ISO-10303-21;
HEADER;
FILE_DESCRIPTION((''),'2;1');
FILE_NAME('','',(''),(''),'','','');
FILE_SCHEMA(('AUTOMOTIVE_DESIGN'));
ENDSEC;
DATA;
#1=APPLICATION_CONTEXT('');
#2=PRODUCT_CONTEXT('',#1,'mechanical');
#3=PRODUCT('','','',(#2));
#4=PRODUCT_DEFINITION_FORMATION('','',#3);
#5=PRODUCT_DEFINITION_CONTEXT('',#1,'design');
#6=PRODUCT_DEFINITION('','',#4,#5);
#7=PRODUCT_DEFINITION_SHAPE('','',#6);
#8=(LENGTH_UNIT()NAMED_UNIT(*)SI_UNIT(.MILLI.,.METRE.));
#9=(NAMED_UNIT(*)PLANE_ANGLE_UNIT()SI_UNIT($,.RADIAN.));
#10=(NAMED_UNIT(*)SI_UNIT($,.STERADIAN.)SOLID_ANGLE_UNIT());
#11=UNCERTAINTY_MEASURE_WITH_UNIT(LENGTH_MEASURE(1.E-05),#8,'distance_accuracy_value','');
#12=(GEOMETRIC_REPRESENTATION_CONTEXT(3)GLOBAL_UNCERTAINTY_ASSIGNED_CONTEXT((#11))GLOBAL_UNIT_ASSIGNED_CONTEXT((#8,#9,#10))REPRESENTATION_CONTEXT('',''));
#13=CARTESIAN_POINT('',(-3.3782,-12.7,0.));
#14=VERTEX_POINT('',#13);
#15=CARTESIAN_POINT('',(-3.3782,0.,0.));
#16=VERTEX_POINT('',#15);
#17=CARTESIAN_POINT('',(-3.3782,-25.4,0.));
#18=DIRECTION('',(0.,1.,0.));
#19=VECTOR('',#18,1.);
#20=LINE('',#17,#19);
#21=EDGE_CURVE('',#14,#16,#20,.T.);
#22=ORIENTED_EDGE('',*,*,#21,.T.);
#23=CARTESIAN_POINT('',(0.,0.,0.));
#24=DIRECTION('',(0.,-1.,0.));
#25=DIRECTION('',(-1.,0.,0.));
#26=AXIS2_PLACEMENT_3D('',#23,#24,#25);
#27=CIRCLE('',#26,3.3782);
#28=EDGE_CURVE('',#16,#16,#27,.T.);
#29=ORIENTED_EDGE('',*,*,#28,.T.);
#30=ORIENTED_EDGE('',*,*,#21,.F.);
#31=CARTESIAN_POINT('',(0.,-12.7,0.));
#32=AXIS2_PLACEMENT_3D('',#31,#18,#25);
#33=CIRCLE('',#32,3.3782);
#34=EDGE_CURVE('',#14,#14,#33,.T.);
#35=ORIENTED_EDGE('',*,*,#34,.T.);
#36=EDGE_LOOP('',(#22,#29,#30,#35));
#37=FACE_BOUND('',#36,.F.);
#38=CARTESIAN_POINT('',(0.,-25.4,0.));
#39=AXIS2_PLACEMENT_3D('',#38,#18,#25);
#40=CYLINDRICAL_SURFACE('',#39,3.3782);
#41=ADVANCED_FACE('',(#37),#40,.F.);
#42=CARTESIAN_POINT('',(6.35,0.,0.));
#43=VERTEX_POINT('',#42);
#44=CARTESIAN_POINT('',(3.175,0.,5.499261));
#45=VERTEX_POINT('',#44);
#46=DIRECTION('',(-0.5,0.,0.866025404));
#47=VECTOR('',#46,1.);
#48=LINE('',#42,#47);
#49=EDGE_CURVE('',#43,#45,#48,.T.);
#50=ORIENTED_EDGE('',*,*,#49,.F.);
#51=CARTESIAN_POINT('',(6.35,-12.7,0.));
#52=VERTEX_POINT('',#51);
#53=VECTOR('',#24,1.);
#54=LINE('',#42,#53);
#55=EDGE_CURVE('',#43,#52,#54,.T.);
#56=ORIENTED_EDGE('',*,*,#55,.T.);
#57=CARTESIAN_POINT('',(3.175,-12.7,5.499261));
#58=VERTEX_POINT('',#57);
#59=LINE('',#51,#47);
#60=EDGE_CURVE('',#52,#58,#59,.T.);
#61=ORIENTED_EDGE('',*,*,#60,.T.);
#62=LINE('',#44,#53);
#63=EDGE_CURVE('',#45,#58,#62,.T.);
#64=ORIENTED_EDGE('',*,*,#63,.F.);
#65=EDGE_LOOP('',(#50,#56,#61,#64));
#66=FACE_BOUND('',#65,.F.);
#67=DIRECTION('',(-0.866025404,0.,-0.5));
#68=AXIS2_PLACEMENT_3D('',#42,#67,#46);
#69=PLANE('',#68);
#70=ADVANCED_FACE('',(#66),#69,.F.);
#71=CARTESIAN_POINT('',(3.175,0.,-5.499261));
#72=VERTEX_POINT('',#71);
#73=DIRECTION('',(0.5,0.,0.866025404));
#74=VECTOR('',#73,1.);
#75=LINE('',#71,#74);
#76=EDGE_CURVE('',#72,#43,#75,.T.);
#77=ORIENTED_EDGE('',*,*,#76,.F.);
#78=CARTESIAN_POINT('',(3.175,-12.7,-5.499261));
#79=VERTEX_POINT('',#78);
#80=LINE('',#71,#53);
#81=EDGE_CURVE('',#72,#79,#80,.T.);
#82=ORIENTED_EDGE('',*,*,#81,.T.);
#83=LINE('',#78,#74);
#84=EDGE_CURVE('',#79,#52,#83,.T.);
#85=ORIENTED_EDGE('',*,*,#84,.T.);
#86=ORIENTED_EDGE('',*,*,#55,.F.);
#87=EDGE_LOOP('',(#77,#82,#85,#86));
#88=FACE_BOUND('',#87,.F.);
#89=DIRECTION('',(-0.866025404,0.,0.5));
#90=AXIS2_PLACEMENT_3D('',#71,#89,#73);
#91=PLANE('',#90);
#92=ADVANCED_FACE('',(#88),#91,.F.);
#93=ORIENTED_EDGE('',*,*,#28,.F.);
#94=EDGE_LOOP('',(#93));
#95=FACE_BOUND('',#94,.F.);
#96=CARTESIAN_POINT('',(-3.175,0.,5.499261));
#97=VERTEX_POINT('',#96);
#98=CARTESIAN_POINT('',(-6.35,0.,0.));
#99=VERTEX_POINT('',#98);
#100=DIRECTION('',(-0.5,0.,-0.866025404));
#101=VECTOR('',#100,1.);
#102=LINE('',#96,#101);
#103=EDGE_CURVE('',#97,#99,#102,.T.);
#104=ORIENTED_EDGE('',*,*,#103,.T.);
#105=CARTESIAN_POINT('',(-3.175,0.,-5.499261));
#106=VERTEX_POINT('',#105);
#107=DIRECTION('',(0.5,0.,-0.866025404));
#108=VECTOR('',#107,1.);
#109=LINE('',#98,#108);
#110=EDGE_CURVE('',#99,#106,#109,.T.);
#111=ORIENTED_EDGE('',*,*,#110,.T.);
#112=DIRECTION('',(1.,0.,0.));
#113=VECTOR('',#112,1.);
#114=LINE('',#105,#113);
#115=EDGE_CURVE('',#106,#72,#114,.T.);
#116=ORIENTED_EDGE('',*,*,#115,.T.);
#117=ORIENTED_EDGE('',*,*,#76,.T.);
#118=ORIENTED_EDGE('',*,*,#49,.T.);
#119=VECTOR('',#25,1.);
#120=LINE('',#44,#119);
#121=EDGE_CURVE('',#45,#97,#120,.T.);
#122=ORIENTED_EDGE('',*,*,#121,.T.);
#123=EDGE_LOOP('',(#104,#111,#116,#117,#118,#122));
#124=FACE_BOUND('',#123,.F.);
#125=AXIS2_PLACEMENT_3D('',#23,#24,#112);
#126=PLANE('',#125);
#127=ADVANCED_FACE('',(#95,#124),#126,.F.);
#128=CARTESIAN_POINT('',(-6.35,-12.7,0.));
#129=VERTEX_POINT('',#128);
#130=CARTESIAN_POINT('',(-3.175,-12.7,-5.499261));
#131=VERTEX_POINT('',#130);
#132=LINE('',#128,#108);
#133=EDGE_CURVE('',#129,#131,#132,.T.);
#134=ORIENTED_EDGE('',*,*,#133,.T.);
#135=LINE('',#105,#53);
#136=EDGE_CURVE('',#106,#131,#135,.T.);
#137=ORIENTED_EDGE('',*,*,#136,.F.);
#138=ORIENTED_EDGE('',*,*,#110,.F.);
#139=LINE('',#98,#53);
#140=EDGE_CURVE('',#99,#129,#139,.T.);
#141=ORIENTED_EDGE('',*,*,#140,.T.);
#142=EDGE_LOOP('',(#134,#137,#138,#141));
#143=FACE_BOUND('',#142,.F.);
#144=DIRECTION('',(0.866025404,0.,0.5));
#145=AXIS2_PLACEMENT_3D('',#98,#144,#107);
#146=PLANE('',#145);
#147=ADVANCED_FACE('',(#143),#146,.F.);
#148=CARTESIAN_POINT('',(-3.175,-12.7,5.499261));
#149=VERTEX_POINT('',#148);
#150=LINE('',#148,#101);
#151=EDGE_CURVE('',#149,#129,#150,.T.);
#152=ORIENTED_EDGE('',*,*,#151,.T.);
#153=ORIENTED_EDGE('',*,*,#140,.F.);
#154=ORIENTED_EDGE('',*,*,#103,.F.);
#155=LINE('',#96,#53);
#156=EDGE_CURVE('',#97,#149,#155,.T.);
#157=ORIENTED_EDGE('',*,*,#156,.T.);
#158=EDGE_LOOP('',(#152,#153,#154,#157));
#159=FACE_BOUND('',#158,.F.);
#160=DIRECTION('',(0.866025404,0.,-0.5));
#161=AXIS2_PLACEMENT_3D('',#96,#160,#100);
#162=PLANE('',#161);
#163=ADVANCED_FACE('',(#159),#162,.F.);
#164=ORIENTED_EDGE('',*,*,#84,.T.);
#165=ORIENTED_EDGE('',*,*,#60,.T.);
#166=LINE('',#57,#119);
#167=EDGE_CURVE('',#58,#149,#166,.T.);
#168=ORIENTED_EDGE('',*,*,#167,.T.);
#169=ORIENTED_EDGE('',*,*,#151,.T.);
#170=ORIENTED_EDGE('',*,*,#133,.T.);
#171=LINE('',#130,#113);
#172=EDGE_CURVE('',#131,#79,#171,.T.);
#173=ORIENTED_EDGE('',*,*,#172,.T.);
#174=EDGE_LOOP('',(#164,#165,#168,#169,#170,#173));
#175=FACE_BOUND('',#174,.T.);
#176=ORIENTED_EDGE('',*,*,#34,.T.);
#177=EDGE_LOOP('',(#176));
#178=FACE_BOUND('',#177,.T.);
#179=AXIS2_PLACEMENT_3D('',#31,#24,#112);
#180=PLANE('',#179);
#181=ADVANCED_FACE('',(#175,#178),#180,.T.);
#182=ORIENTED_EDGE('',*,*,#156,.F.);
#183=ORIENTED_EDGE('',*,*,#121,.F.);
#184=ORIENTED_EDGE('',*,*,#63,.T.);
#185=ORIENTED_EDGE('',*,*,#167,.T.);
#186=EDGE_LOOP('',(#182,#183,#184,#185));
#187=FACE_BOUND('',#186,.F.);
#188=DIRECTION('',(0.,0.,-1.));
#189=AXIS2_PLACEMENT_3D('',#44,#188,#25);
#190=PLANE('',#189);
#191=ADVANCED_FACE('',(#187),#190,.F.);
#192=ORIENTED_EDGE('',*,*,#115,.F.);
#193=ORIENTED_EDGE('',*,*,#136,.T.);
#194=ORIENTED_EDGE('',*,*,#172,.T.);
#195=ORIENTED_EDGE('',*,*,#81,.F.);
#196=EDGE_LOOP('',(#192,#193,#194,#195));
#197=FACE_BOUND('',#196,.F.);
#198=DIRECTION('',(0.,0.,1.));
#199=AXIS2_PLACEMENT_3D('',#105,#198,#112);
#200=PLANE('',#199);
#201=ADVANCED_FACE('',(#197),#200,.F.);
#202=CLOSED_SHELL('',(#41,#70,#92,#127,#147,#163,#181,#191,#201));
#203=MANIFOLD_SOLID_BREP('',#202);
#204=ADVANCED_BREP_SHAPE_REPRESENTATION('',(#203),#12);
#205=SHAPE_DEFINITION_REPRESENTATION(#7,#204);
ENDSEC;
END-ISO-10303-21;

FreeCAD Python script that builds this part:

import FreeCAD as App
import Part
import Sketcher
Q = App.Units.Quantity


def add_polygon(sketch, points):
    """Adds a closed chain of lines whose ends are joined by coincident constraints."""
    first, n = sketch.GeometryCount, len(points)
    for a, b in zip(points, points[1:] + points[:1]):
        sketch.addGeometry(Part.LineSegment(App.Vector(*a, 0), App.Vector(*b, 0)), False)
    for i in range(n):
        sketch.addConstraint(Sketcher.Constraint("Coincident", first + i, 2, first + (i + 1) % n, 1))

doc = App.newDocument("Part")
body = doc.addObject("PartDesign::Body", "Body")

sketch1 = body.newObject("Sketcher::SketchObject", "Sketch")
sketch1.AttachmentSupport = (doc.getObject("XZ_Plane"), [""])
sketch1.MapMode = "FlatFace"
add_polygon(sketch1, [(-3.175, 5.499261), (-6.35, 0), (-3.175, -5.499261), (3.175, -5.499261), (6.35, 0), (3.175, 5.499261)])
sketch1.addConstraint([
    Sketcher.Constraint("Horizontal", 2),
    Sketcher.Constraint("Horizontal", 5),
    Sketcher.Constraint("Symmetric", 0, 2, 3, 2, -1, 1),
    Sketcher.Constraint("Symmetric", 1, 2, 4, 2, -1, 1),
    Sketcher.Constraint("PointOnObject", 0, 2, -1),
    Sketcher.Constraint("Parallel", 0, 3),
    Sketcher.Constraint("Vertical", 2, 2, 4, 2),
    Sketcher.Constraint("Angle", 0, Q("-120 deg")),
    Sketcher.Constraint("DistanceX", 2, 1, 2, 2, Q("0.25 in")),
    Sketcher.Constraint("DistanceX", 0, 2, 3, 2, Q("0.5 in")),
])
pad1 = body.newObject("PartDesign::Pad", "Pad")
pad1.Profile = sketch1
pad1.Length = Q("0.5 in")

sketch2 = body.newObject("Sketcher::SketchObject", "Sketch001")
sketch2.AttachmentSupport = (doc.getObject("XZ_Plane"), [""])
sketch2.MapMode = "FlatFace"
sketch2.AttachmentOffset = App.Placement(App.Vector(0, 0, 0.5 * 25.4), App.Rotation())
sketch2.addGeometry(Part.Circle(App.Vector(0, 0, 0), App.Vector(0, 0, 1), 3.3782), False)
sketch2.addConstraint([
    Sketcher.Constraint("Coincident", 0, 3, -1, 1),
    Sketcher.Constraint("Diameter", 0, Q("0.266 in")),
])
doc.recompute()
hole = body.newObject("PartDesign::Hole", "Hole")
hole.Profile = sketch2
hole.ThreadType = "None"
hole.Diameter = Q("0.266 in")
hole.DepthType = "Dimension"
hole.Depth = Q("0.5 in")
hole.DrillPoint = "Angled"
hole.DrillPointAngle = 118

doc.recompute()
